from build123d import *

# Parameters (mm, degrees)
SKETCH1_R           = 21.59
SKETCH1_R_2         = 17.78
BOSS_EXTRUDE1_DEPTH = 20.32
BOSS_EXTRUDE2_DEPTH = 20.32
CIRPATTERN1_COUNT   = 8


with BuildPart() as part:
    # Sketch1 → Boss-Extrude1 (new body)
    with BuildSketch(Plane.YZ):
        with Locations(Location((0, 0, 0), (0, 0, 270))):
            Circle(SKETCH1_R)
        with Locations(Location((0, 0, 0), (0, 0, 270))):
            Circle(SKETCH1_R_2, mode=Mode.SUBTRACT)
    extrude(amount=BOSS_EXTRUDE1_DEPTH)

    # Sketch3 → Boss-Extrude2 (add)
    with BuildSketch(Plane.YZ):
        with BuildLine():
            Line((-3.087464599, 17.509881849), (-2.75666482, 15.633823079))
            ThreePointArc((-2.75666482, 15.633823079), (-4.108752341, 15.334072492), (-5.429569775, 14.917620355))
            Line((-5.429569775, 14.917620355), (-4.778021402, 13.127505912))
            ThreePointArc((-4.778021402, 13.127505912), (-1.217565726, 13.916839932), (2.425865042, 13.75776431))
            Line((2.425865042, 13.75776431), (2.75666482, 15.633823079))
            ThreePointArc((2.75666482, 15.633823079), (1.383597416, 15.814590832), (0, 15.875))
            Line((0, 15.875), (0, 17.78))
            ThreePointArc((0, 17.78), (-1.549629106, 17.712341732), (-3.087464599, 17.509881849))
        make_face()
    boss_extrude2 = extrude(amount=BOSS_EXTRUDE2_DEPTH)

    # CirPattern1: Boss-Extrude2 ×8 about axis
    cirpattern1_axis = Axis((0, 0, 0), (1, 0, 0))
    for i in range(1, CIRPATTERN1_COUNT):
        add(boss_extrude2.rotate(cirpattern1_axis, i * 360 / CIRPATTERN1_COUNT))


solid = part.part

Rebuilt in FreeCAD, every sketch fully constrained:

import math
import FreeCAD as App
import Part
import Sketcher

V = App.Vector
Q = App.Units.Quantity

doc = App.newDocument("Part")
params = doc.addObject("Spreadsheet::Sheet", "Params")
for row, (alias, value) in enumerate([
    ("sketch1_diameter", "1.7 in"),
    ("sketch1_diameter2", "1.4 in"),
    ("pad1_length", "0.8 in"),
    ("sketch2_radius", "0.7 in"),
    ("sketch2_radius2", "0.55 in"),
    ("pad2_length", "0.8 in"),
], start=1):
    params.set(f"A{row}", alias)
    params.set(f"B{row}", "=" + value)
    params.setAlias(f"B{row}", alias)

body = doc.addObject("PartDesign::Body", "Body")

# Sketch on YZ plane
sketch1 = body.newObject("Sketcher::SketchObject", "Sketch")
sketch1.AttachmentSupport = (doc.getObject("YZ_Plane"), [""])
sketch1.MapMode = "FlatFace"
sketch1.addGeometry([
    Part.Circle(V(0, 0, 0), V(0, 0, 1), 21.59),
    Part.Circle(V(0, 0, 0), V(0, 0, 1), 17.78),
], False)
sketch1.addConstraint([
    Sketcher.Constraint("Coincident", 0, 3, -1, 1),
    Sketcher.Constraint("Coincident", 1, 3, -1, 1),
    Sketcher.Constraint("Diameter", 0, Q("1.7 in")),
    Sketcher.Constraint("Diameter", 1, Q("1.4 in")),
])
sketch1.setExpression("Constraints[2]", "Params.sketch1_diameter")
sketch1.setExpression("Constraints[3]", "Params.sketch1_diameter2")
pad1 = body.newObject("PartDesign::Pad", "Pad")
pad1.Profile = sketch1
pad1.setExpression("Length", "Params.pad1_length")

# Sketch on YZ plane
sketch2 = body.newObject("Sketcher::SketchObject", "Sketch001")
sketch2.AttachmentSupport = (doc.getObject("YZ_Plane"), [""])
sketch2.MapMode = "FlatFace"
sketch2.addGeometry([
    Part.LineSegment(V(-3.087465, 17.509882, 0), V(-2.756665, 15.633823, 0)),  # 0
    Part.ArcOfCircle(Part.Circle(V(0, 0, 0), V(0, 0, 1), 15.875), math.radians(100), math.radians(110)),  # 1
    Part.LineSegment(V(-5.42957, 14.91762, 0), V(-4.778021, 13.127506, 0)),  # 2
    Part.ArcOfCircle(Part.Circle(V(0, 0, 0), V(0, 0, 1), 13.97), math.radians(80), math.radians(110)),  # 3
    Part.LineSegment(V(2.425865, 13.757764, 0), V(2.756665, 15.633823, 0)),  # 4
    Part.ArcOfCircle(Part.Circle(V(0, 0, 0), V(0, 0, 1), 15.875), math.radians(80), math.radians(90)),  # 5
    Part.LineSegment(V(0, 15.875, 0), V(0, 17.78, 0)),  # 6
    Part.ArcOfCircle(Part.Circle(V(0, 0, 0), V(0, 0, 1), 17.78), math.radians(90), math.radians(100)),  # 7
], False)
sketch2.addConstraint([
    Sketcher.Constraint("Coincident", 0, 2, 1, 1),
    Sketcher.Constraint("Coincident", 1, 2, 2, 1),
    Sketcher.Constraint("Coincident", 2, 2, 3, 2),
    Sketcher.Constraint("Coincident", 3, 1, 4, 1),
    Sketcher.Constraint("Coincident", 4, 2, 5, 1),
    Sketcher.Constraint("Coincident", 5, 2, 6, 1),
    Sketcher.Constraint("Coincident", 6, 2, 7, 1),
    Sketcher.Constraint("Coincident", 7, 2, 0, 1),
    Sketcher.Constraint("Vertical", 6),
    Sketcher.Constraint("Coincident", 1, 3, -1, 1),
    Sketcher.Constraint("Coincident", 3, 3, -1, 1),
    Sketcher.Constraint("Coincident", 5, 3, -1, 1),
    Sketcher.Constraint("Coincident", 7, 3, -1, 1),
    Sketcher.Constraint("Equal", 1, 5),
    Sketcher.Constraint("PointOnObject", 5, 2, -2),
    Sketcher.Constraint("Horizontal", 0, 2, 4, 2),
    Sketcher.Constraint("Equal", 0, 2),
    Sketcher.Constraint("Radius", 7, Q("0.7 in")),
    Sketcher.Constraint("Radius", 3, Q("0.55 in")),
    Sketcher.Constraint("Angle", 0, Q("-80 deg")),
    Sketcher.Constraint("Angle", 2, Q("-70 deg")),
    Sketcher.Constraint("Angle", 4, Q("80 deg")),
    Sketcher.Constraint("DistanceX", 1, 2, -1, 1, Q("5.42957 mm")),
    Sketcher.Constraint("DistanceY", -1, 1, 7, 2, Q("17.509882 mm")),
])
sketch2.setExpression("Constraints[17]", "Params.sketch2_radius")
sketch2.setExpression("Constraints[18]", "Params.sketch2_radius2")
pad2 = body.newObject("PartDesign::Pad", "Pad001")
pad2.Profile = sketch2
pad2.setExpression("Length", "Params.pad2_length")
doc.recompute()

polarpattern = body.newObject("PartDesign::PolarPattern", "PolarPattern")
polarpattern.Originals = [pad2]
polarpattern.Axis = (doc.getObject("X_Axis"), [""])
polarpattern.Angle = 360
polarpattern.Occurrences = 8
body.Tip = polarpattern

doc.recompute()
